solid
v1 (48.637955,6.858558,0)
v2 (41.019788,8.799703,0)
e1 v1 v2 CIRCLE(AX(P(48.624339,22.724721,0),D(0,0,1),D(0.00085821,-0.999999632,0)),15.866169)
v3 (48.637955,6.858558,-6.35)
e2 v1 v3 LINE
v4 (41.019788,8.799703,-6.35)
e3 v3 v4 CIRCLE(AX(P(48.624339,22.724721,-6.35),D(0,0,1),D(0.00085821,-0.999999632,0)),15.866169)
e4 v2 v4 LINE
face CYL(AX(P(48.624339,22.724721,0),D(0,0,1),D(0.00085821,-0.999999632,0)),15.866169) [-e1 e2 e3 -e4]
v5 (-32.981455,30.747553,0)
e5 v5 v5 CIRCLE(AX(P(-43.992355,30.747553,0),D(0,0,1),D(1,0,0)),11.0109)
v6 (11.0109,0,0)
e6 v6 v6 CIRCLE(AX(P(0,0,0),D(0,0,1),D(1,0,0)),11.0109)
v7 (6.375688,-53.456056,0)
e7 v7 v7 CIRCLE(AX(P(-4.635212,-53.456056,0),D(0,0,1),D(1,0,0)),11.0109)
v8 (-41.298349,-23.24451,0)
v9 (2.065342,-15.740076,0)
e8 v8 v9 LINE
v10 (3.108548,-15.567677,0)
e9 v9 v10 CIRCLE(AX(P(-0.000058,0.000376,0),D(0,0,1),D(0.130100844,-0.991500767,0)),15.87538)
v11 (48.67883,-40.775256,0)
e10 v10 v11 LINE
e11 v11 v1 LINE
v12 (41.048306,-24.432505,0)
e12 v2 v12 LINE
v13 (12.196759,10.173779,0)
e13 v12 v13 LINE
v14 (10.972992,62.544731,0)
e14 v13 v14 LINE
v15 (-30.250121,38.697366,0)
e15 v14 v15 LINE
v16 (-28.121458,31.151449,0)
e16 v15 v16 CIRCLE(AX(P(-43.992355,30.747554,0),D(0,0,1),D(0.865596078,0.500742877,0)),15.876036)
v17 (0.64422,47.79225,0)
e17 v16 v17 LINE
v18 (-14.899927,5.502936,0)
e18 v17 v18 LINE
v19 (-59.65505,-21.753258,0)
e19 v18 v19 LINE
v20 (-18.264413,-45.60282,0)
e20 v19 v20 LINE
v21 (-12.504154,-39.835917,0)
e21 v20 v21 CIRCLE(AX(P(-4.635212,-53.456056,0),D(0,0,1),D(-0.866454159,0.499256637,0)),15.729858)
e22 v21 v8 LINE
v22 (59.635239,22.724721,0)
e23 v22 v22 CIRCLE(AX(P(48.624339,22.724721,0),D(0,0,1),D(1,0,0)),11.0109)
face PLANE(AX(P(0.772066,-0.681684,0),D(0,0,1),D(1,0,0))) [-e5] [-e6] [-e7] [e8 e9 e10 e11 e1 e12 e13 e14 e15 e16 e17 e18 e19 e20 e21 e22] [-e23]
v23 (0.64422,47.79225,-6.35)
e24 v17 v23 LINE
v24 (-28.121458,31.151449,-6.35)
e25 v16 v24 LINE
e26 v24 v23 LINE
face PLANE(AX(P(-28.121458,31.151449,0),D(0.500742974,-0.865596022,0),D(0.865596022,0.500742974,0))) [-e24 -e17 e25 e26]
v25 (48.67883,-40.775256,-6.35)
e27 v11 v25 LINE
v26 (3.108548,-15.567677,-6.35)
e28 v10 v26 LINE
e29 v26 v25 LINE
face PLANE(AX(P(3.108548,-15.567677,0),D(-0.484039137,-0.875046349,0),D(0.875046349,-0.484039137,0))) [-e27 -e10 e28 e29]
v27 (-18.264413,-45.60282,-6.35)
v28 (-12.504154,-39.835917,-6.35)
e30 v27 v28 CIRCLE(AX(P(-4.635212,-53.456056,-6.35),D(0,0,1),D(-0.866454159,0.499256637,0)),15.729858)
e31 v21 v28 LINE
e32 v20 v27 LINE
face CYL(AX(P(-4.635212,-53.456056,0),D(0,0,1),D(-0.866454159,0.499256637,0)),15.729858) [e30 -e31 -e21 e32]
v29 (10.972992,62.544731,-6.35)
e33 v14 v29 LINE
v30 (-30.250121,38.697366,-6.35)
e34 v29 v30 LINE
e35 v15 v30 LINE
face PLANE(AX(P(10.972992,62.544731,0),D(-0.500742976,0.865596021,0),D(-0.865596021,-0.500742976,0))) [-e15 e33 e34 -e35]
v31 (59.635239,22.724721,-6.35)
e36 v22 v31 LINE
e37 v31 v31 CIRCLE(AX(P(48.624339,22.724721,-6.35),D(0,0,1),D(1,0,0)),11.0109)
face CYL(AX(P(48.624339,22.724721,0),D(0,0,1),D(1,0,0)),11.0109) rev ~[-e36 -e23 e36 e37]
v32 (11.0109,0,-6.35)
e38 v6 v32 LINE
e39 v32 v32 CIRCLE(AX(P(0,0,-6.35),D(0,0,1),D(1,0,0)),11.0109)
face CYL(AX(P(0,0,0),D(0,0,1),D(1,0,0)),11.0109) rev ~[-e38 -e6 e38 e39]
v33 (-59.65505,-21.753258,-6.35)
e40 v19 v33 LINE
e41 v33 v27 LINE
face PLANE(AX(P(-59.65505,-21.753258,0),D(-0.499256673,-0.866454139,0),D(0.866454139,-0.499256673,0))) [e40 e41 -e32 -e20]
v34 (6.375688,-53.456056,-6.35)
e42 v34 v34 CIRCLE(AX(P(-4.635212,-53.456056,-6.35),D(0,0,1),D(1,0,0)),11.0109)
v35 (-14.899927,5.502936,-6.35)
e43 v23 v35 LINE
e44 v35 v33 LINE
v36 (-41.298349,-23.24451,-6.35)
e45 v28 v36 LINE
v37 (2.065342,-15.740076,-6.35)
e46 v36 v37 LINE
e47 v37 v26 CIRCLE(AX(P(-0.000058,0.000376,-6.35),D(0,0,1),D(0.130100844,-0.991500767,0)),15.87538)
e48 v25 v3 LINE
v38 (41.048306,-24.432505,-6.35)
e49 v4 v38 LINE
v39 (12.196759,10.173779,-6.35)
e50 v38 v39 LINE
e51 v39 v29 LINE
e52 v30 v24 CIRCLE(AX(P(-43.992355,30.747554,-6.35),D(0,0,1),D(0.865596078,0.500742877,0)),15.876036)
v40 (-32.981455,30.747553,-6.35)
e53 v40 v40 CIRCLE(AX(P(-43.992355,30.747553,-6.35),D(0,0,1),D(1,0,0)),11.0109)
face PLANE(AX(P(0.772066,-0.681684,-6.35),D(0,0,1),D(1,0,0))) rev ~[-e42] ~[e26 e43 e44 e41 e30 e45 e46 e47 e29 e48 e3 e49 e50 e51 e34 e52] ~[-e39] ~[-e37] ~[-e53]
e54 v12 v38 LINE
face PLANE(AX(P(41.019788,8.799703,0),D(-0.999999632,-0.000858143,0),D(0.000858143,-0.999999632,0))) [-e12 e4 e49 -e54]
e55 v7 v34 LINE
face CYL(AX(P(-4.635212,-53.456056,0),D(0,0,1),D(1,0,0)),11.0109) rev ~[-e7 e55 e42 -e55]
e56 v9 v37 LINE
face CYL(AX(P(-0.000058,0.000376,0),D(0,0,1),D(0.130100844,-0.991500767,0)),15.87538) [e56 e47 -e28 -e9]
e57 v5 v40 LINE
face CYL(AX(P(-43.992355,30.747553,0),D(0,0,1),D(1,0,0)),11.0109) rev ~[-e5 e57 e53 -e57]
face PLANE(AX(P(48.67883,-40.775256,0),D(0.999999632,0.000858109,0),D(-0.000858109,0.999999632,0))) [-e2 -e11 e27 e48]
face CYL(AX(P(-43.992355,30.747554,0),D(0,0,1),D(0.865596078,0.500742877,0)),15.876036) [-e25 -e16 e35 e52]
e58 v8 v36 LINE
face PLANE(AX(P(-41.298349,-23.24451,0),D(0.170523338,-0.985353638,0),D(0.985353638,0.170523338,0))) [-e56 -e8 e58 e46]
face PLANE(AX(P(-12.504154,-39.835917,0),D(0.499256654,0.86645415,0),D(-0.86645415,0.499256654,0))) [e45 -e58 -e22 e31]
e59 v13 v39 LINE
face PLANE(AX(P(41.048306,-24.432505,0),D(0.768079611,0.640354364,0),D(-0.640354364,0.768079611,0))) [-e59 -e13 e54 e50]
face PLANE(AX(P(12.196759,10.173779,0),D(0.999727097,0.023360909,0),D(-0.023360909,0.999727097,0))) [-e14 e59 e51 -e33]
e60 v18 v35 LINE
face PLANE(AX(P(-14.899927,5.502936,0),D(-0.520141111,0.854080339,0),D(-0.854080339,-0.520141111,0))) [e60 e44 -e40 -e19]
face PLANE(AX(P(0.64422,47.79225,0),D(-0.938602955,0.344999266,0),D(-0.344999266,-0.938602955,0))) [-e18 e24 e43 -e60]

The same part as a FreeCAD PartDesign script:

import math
import FreeCAD as App
import Part
import Sketcher

V = App.Vector
Q = App.Units.Quantity

doc = App.newDocument("Part")
body = doc.addObject("PartDesign::Body", "Body")

# Sketch on XY plane
sketch1 = doc.addObject("Sketcher::SketchObject", "Sketch")
body.addObject(sketch1)
sketch1.AttachmentSupport = (doc.XY_Plane, [""])
sketch1.MapMode = "FlatFace"
sketch1.addGeometry([
    Part.LineSegment(V(3.1, -15.6, 0), V(48.7, -40.8, 0)),  # 0
    Part.LineSegment(V(48.7, -40.8, 0), V(48.6, 6.9, 0)),  # 1
    Part.ArcOfCircle(Part.Circle(V(48.6, 22.7, 0), V(0, 0, 1), 15.9), math.radians(-90), math.radians(241)),  # 2
    Part.LineSegment(V(41, 8.8, 0), V(41, -24.4, 0)),  # 3
    Part.LineSegment(V(41, -24.4, 0), V(12.2, 10.2, 0)),  # 4
    Part.LineSegment(V(12.2, 10.2, 0), V(11, 62.5, 0)),  # 5
    Part.LineSegment(V(11, 62.5, 0), V(-30.3, 38.7, 0)),  # 6
    Part.ArcOfCircle(Part.Circle(V(-44, 30.7, 0), V(0, 0, 1), 15.9), math.radians(30), math.radians(361)),  # 7
    Part.LineSegment(V(-28.1, 31.2, 0), V(0.6, 47.8, 0)),  # 8
    Part.LineSegment(V(0.6, 47.8, 0), V(-14.9, 5.5, 0)),  # 9
    Part.LineSegment(V(-14.9, 5.5, 0), V(-59.7, -21.8, 0)),  # 10
    Part.LineSegment(V(-59.7, -21.8, 0), V(-18.3, -45.6, 0)),  # 11
    Part.ArcOfCircle(Part.Circle(V(-4.6, -53.5, 0), V(0, 0, 1), 15.7), math.radians(150), math.radians(480)),  # 12
    Part.LineSegment(V(-12.5, -39.8, 0), V(-41.3, -23.2, 0)),  # 13
    Part.LineSegment(V(-41.3, -23.2, 0), V(2.1, -15.7, 0)),  # 14
    Part.ArcOfCircle(Part.Circle(V(0, 0, 0), V(0, 0, 1), 15.9), math.radians(-82.52), math.radians(-78.71)),  # 15
    Part.Circle(V(-4.6, -53.5, 0), V(0, 0, 1), 11),  # 16
    Part.Circle(V(0, 0, 0), V(0, 0, 1), 11),  # 17
    Part.Circle(V(-44, 30.7, 0), V(0, 0, 1), 11),  # 18
    Part.Circle(V(48.6, 22.7, 0), V(0, 0, 1), 11),  # 19
], False)
sketch1.addConstraint([
    Sketcher.Constraint("Coincident", 0, 2, 1, 1),
    Sketcher.Constraint("Coincident", 1, 2, 2, 1),
    Sketcher.Constraint("Coincident", 2, 2, 3, 1),
    Sketcher.Constraint("Coincident", 3, 2, 4, 1),
    Sketcher.Constraint("Coincident", 4, 2, 5, 1),
    Sketcher.Constraint("Coincident", 5, 2, 6, 1),
    Sketcher.Constraint("Coincident", 6, 2, 7, 1),
    Sketcher.Constraint("Coincident", 7, 2, 8, 1),
    Sketcher.Constraint("Coincident", 8, 2, 9, 1),
    Sketcher.Constraint("Coincident", 9, 2, 10, 1),
    Sketcher.Constraint("Coincident", 10, 2, 11, 1),
    Sketcher.Constraint("Coincident", 11, 2, 12, 1),
    Sketcher.Constraint("Coincident", 12, 2, 13, 1),
    Sketcher.Constraint("Coincident", 13, 2, 14, 1),
    Sketcher.Constraint("Coincident", 14, 2, 15, 1),
    Sketcher.Constraint("Coincident", 15, 2, 0, 1),
    Sketcher.Constraint("Coincident", 17, 3, -1, 1),
    Sketcher.Constraint("Coincident", 16, 3, 12, 3),
    Sketcher.Constraint("Coincident", 18, 3, 7, 3),
    Sketcher.Constraint("Coincident", 19, 3, 2, 3),
    Sketcher.Constraint("Equal", 16, 17),
    Sketcher.Constraint("Equal", 17, 18),
    Sketcher.Constraint("Equal", 18, 19),
    Sketcher.Constraint("Parallel", 1, 3),
    Sketcher.Constraint("Parallel", 6, 8),
    Sketcher.Constraint("Parallel", 11, 13),
    Sketcher.Constraint("Equal", 3, 8),
    Sketcher.Constraint("Equal", 4, 9),
    Sketcher.Constraint("Equal", 8, 13),
    Sketcher.Constraint("Diameter", 16, Q("0.867 in")),
    Sketcher.Constraint("Radius", 2, Q("15.866169 mm")),
    Sketcher.Constraint("Radius", 12, Q("15.729858 mm")),
    Sketcher.Constraint("Radius", 15, Q("15.87538 mm")),
    Sketcher.Constraint("Radius", 7, Q("15.876036 mm")),
    Sketcher.Constraint("DistanceY", 16, 3, 0, 2, Q("12.6808 mm")),
    Sketcher.Constraint("DistanceX", 7, 2, 15, 3, Q("28.1214 mm")),
    Sketcher.Constraint("DistanceY", 7, 2, 8, 2, Q("16.640801 mm")),
    Sketcher.Constraint("DistanceX", 11, 2, 16, 3, Q("13.629201 mm")),
    Sketcher.Constraint("DistanceX", 10, 2, 13, 2, Q("18.356701 mm")),
    Sketcher.Constraint("DistanceX", 15, 3, 14, 2, Q("2.0654 mm")),
    Sketcher.Constraint("DistanceY", 14, 2, 15, 2, Q("0.172399 mm")),
    Sketcher.Constraint("Distance", 1, Q("47.633832 mm")),
    Sketcher.Constraint("Distance", 3, Q("33.23222 mm")),
    Sketcher.Constraint("Distance", 5, Q("52.385248 mm")),
    Sketcher.Constraint("Distance", 11, Q("47.770142 mm")),
    Sketcher.Constraint("Distance", 14, Q("44.008252 mm")),
    Sketcher.Constraint("DistanceX", -1, 1, 2, 3, Q("48.624339 mm")),
    Sketcher.Constraint("DistanceY", -1, 1, 2, 3, Q("22.724721 mm")),
    Sketcher.Constraint("DistanceX", -1, 1, 0, 2, Q("48.67883 mm")),
    Sketcher.Constraint("DistanceX", -1, 1, 2, 2, Q("41.019788 mm")),
    Sketcher.Constraint("DistanceX", -1, 1, 4, 2, Q("12.196759 mm")),
    Sketcher.Constraint("DistanceY", -1, 1, 4, 2, Q("10.173779 mm")),
    Sketcher.Constraint("DistanceY", -1, 1, 5, 2, Q("62.544731 mm")),
    Sketcher.Constraint("DistanceX", 6, 2, -1, 1, Q("30.250121 mm")),
    Sketcher.Constraint("DistanceX", 7, 2, -1, 1, Q("28.121458 mm")),
    Sketcher.Constraint("DistanceY", -1, 1, 7, 2, Q("31.151449 mm")),
    Sketcher.Constraint("DistanceX", 10, 2, -1, 1, Q("59.65505 mm")),
    Sketcher.Constraint("DistanceY", 13, 2, -1, 1, Q("23.24451 mm")),
    Sketcher.Constraint("DistanceX", 3, 2, 1, 2, Q("7.589649 mm")),
    Sketcher.Constraint("DistanceX", 9, 2, 15, 3, Q("14.899869 mm")),
])
pad1 = doc.addObject("PartDesign::Pad", "Pad")
body.addObject(pad1)
pad1.Profile = sketch1
pad1.Length = Q("0.25 in")
pad1.Reversed = True

doc.recompute()
